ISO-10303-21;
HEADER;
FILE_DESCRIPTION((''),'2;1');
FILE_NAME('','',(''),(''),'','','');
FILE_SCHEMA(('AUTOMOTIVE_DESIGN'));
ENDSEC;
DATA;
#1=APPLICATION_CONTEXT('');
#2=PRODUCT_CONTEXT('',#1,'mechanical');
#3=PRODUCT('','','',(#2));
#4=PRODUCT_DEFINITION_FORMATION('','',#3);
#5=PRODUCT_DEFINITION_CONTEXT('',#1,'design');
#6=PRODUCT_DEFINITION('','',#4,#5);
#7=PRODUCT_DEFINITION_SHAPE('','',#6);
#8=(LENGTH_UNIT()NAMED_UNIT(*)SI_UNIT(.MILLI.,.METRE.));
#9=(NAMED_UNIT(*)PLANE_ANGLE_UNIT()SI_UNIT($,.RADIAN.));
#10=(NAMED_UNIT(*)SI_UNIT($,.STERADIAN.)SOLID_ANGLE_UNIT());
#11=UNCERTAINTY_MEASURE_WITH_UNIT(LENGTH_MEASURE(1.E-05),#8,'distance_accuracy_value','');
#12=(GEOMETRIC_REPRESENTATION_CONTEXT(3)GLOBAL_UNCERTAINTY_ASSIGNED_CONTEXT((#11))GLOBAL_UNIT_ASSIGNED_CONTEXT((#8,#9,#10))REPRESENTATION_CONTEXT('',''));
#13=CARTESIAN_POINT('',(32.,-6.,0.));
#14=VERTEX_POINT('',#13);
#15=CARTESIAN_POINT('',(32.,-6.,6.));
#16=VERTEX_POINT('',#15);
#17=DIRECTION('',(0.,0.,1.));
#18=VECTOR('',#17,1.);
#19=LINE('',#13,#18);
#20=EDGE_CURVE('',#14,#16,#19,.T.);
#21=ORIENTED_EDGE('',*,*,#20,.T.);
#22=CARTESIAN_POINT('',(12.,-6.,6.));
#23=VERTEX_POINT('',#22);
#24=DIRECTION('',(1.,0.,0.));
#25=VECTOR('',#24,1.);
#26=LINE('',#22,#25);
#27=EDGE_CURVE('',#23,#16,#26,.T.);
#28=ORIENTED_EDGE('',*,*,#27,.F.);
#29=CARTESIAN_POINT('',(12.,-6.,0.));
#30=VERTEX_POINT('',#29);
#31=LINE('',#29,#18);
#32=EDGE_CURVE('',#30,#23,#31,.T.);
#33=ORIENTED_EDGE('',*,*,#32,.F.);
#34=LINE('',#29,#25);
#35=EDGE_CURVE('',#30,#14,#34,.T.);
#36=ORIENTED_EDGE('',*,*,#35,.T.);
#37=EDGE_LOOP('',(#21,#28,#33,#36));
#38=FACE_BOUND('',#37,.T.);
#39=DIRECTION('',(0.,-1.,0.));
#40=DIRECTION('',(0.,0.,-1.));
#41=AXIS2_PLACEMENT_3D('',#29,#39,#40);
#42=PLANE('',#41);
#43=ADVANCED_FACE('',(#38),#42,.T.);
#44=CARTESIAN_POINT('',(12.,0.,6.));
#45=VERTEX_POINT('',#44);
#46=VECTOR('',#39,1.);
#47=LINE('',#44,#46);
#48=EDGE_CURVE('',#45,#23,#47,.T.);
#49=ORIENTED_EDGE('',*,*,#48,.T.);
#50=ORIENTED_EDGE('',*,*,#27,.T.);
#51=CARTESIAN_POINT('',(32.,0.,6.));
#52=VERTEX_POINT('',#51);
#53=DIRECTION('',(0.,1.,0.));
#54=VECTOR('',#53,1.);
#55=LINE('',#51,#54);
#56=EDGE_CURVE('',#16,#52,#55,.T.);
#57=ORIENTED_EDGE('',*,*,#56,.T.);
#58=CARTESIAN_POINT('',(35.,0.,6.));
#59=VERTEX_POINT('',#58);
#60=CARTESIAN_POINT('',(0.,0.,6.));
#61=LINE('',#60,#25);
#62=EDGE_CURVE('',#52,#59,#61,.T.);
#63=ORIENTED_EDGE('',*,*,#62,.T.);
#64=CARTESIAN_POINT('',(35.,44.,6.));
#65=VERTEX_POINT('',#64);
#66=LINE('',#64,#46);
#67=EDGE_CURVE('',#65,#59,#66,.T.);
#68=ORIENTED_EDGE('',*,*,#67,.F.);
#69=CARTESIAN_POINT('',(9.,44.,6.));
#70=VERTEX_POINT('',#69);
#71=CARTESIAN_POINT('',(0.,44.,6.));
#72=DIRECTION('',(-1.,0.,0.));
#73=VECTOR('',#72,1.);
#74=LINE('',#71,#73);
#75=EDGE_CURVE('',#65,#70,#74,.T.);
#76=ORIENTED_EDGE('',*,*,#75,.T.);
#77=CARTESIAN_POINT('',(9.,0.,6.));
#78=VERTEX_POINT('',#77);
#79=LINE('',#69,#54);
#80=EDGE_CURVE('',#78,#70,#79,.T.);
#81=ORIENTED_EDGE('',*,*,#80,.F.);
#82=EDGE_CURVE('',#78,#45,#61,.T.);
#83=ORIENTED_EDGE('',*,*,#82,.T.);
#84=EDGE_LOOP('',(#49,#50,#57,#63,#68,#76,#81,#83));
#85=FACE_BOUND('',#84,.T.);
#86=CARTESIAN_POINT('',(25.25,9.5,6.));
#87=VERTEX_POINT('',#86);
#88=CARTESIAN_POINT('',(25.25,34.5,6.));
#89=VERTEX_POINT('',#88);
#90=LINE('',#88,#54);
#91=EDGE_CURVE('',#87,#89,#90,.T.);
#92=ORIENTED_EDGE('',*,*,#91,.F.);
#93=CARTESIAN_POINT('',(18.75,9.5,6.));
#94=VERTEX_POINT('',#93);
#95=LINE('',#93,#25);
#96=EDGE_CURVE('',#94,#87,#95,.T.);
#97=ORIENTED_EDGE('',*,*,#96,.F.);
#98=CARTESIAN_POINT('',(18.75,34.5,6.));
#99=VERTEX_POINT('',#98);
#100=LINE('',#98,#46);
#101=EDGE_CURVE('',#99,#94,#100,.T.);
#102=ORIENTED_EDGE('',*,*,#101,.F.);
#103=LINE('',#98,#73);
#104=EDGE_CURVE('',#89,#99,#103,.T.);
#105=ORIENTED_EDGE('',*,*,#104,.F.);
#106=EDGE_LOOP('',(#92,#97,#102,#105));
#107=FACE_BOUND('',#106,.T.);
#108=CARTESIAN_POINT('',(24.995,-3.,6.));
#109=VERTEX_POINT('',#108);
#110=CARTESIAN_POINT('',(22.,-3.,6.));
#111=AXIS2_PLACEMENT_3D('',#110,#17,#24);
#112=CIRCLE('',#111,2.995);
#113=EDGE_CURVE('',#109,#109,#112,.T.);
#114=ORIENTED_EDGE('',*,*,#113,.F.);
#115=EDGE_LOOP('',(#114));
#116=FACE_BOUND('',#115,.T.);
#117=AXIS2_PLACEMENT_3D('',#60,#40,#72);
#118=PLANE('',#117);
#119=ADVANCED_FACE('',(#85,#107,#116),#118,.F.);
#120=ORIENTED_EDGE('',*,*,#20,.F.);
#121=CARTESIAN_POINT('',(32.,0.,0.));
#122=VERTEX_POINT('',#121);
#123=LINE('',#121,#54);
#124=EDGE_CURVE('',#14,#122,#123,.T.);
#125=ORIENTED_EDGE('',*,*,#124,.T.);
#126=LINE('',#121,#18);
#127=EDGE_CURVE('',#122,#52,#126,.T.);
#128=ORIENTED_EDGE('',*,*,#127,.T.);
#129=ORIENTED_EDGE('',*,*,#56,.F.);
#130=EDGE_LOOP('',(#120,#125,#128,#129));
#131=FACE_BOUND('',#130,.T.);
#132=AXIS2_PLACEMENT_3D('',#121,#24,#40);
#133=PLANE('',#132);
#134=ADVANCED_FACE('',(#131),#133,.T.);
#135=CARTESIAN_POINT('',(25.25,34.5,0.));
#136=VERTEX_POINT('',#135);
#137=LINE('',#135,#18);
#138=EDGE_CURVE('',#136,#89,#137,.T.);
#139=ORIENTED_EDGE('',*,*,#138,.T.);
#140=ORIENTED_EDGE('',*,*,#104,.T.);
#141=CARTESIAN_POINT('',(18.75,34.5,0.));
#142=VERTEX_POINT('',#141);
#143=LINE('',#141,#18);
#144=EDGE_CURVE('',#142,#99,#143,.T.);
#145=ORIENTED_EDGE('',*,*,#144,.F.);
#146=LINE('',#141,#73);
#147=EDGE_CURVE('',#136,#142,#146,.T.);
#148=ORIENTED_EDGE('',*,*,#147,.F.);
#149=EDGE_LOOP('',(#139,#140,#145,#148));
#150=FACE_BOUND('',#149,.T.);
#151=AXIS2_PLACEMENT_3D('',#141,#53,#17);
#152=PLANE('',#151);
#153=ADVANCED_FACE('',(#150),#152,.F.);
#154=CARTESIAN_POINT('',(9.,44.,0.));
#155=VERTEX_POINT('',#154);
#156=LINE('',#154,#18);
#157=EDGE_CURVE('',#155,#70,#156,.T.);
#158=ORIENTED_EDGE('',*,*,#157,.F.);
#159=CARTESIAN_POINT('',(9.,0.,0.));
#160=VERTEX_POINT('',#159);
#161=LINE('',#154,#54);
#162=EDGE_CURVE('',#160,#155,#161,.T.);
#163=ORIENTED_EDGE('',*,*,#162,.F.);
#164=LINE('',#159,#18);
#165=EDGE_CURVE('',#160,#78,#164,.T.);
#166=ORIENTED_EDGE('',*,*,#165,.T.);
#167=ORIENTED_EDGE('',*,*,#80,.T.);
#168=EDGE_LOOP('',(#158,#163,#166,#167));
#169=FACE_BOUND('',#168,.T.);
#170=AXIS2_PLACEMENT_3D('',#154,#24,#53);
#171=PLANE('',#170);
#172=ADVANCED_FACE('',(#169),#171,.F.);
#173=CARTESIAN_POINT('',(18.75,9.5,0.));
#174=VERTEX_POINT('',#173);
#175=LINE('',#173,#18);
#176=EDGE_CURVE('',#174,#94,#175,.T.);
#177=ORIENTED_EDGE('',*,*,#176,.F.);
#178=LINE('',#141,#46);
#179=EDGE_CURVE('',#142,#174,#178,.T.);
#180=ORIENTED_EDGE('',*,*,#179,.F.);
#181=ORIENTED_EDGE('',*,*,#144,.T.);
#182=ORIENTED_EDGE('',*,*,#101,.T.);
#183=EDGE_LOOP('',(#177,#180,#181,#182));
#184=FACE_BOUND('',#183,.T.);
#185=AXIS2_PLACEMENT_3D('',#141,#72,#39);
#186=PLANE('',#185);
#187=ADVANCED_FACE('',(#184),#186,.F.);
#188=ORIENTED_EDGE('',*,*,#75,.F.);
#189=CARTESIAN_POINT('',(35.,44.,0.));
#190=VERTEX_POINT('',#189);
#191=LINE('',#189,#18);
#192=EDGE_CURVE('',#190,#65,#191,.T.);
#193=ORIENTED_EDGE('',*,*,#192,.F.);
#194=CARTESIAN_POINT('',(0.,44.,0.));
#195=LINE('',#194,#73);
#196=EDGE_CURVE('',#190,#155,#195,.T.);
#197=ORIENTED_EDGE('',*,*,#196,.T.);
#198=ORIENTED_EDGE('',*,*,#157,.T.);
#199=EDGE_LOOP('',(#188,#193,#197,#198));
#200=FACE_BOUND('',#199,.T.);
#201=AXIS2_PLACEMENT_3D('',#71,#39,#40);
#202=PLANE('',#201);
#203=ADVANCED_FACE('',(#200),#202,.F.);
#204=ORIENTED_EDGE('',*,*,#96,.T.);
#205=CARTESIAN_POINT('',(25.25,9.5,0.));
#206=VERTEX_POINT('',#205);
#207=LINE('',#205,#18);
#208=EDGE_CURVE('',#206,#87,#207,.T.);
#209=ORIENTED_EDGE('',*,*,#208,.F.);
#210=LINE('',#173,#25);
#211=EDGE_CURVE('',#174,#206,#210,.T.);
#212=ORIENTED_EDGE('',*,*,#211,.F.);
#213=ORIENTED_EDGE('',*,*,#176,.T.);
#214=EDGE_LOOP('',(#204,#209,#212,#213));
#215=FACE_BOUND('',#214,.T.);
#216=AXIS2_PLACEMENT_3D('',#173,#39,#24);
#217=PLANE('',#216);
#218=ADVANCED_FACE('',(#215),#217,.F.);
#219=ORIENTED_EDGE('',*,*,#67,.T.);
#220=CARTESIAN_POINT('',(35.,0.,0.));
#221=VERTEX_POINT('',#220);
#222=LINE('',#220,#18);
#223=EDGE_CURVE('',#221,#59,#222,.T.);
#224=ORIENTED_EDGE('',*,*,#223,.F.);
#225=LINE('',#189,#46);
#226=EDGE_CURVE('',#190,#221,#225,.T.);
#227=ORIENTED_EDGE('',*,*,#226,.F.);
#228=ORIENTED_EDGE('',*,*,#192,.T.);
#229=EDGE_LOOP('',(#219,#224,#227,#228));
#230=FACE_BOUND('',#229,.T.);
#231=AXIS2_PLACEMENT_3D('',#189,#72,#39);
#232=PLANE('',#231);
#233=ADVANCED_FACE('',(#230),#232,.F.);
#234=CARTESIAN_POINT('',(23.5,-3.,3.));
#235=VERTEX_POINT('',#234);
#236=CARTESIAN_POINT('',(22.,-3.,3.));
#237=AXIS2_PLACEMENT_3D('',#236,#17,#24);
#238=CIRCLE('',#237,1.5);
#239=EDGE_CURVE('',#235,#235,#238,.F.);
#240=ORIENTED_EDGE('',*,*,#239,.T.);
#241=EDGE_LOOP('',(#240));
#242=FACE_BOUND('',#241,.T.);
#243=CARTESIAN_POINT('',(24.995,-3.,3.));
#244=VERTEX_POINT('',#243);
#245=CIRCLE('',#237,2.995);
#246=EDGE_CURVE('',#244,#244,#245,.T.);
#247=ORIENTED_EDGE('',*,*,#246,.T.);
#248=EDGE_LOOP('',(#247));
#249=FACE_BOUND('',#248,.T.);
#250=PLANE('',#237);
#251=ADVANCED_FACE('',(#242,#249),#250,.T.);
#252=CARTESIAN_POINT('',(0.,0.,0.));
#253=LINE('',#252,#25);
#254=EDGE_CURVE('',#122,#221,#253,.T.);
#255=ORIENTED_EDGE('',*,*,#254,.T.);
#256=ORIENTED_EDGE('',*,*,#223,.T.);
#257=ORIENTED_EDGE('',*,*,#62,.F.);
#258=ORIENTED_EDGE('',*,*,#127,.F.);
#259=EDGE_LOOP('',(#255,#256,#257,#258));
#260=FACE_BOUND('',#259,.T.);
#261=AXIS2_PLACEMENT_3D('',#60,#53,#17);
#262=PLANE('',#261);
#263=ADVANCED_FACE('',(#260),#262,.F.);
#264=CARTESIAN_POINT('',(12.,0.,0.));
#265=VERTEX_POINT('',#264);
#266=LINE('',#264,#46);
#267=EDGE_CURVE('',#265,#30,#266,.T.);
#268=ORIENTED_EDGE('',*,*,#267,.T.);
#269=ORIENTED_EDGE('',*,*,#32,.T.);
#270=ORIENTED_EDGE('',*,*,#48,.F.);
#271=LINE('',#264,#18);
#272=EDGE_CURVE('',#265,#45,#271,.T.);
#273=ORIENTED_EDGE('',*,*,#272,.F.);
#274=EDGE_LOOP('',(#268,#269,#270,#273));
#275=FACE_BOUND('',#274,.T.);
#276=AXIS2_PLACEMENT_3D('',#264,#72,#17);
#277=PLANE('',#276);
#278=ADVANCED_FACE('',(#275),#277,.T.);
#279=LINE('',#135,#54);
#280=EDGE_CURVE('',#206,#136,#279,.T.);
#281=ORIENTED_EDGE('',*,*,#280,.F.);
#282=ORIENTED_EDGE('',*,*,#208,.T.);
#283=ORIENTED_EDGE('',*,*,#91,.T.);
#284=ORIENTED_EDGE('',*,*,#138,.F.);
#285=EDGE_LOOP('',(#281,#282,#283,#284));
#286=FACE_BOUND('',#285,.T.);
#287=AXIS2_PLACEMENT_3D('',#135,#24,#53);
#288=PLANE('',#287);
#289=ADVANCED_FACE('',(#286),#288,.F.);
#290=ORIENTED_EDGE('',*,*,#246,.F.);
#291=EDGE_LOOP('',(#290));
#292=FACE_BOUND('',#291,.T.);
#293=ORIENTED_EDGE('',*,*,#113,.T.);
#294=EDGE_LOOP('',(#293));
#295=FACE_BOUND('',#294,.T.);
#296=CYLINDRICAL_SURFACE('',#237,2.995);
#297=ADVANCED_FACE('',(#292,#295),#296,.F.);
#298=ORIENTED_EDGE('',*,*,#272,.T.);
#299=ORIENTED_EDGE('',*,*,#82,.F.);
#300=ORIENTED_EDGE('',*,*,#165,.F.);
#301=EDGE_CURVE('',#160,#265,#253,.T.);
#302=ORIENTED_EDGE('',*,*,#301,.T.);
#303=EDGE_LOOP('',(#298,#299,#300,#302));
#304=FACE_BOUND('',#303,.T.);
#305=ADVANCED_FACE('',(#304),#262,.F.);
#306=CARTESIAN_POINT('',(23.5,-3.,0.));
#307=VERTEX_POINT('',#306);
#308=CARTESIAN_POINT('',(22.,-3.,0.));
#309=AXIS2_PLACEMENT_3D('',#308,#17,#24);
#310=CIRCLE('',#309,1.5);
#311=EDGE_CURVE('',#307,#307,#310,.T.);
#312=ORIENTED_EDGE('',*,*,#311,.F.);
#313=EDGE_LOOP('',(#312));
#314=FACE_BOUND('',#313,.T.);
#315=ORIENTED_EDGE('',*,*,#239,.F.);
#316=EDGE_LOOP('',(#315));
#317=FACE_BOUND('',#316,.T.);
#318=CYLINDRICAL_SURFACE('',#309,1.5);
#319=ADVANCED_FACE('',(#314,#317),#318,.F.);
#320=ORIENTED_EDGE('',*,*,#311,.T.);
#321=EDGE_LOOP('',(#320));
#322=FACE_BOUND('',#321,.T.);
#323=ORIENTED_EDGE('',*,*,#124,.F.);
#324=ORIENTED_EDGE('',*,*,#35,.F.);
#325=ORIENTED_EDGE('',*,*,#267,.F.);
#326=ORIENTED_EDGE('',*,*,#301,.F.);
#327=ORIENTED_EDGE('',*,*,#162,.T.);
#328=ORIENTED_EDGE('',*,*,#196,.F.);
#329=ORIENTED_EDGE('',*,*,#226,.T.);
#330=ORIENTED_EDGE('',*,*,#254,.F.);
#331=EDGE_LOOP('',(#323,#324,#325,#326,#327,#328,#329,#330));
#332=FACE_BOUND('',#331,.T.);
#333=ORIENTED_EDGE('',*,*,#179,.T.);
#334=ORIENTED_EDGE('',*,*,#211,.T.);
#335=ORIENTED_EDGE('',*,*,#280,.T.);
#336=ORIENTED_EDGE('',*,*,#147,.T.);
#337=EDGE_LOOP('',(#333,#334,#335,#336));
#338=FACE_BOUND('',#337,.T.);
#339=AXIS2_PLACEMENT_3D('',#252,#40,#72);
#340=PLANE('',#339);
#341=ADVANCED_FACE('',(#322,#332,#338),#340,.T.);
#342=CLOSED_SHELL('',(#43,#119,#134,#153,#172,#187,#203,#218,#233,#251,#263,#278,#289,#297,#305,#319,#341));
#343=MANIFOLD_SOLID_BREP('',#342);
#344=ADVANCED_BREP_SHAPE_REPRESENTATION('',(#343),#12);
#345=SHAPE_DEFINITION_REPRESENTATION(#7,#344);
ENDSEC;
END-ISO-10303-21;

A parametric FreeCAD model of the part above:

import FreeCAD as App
import Part
import Sketcher

doc = App.newDocument("Part")
body = doc.addObject("PartDesign::Body", "Body")

sketch1 = body.newObject("Sketcher::SketchObject", "Sketch")
sketch1.AttachmentSupport = (doc.getObject("XY_Plane"), [""])
sketch1.MapMode = "FlatFace"
sketch1.addGeometry([
    Part.LineSegment(App.Vector(0, 44, 0), App.Vector(0, 0, 0)),
    Part.LineSegment(App.Vector(0, 0, 0), App.Vector(44, 0, 0)),
    Part.LineSegment(App.Vector(44, 0, 0), App.Vector(44, 44, 0)),
    Part.LineSegment(App.Vector(44, 44, 0), App.Vector(0, 44, 0)),
], False)
sketch1.addConstraint([
    Sketcher.Constraint("Coincident", 0, 2, 1, 1),
    Sketcher.Constraint("Coincident", 1, 2, 2, 1),
    Sketcher.Constraint("Coincident", 2, 2, 3, 1),
    Sketcher.Constraint("Coincident", 3, 2, 0, 1),
    Sketcher.Constraint("Vertical", 0),
    Sketcher.Constraint("Horizontal", 1),
    Sketcher.Constraint("Vertical", 2),
    Sketcher.Constraint("Horizontal", 3),
    Sketcher.Constraint("Coincident", 0, 2, -1, 1),
    Sketcher.Constraint("Equal", 3, 0),
    Sketcher.Constraint("DistanceX", 1, 1, 1, 2, 44.0),
])
pad1 = body.newObject("PartDesign::Pad", "Pad")
pad1.Profile = sketch1
pad1.Length = 6

sketch2 = body.newObject("Sketcher::SketchObject", "Sketch001")
sketch2.AttachmentSupport = (doc.getObject("XY_Plane"), [""])
sketch2.MapMode = "FlatFace"
sketch2.AttachmentOffset = App.Placement(App.Vector(0, 0, 6), App.Rotation())
sketch2.addGeometry([
    Part.LineSegment(App.Vector(12, 0, 0), App.Vector(12, -6, 0)),
    Part.LineSegment(App.Vector(12, -6, 0), App.Vector(32, -6, 0)),
    Part.LineSegment(App.Vector(32, -6, 0), App.Vector(32, 0, 0)),
    Part.LineSegment(App.Vector(32, 0, 0), App.Vector(12, 0, 0)),
], False)
sketch2.addConstraint([
    Sketcher.Constraint("Coincident", 0, 2, 1, 1),
    Sketcher.Constraint("Coincident", 1, 2, 2, 1),
    Sketcher.Constraint("Coincident", 2, 2, 3, 1),
    Sketcher.Constraint("Coincident", 3, 2, 0, 1),
    Sketcher.Constraint("Vertical", 0),
    Sketcher.Constraint("Horizontal", 1),
    Sketcher.Constraint("Vertical", 2),
    Sketcher.Constraint("Horizontal", 3),
    Sketcher.Constraint("PointOnObject", 2, 2, -1),
    Sketcher.Constraint("DistanceX", 1, 1, 1, 2, 20.0),
    Sketcher.Constraint("DistanceY", 0, 2, 0, 1, 6.0),
    Sketcher.Constraint("DistanceX", -1, 1, 0, 2, 12.0),
])
pad2 = body.newObject("PartDesign::Pad", "Pad001")
pad2.Profile = sketch2
pad2.Length = 6
pad2.Reversed = True

sketch3 = body.newObject("Sketcher::SketchObject", "Sketch002")
sketch3.AttachmentSupport = (doc.getObject("XY_Plane"), [""])
sketch3.MapMode = "FlatFace"
sketch3.AttachmentOffset = App.Placement(App.Vector(0, 0, 6), App.Rotation())
sketch3.addGeometry([
    Part.LineSegment(App.Vector(19, 34, 0), App.Vector(19, 10, 0)),
    Part.LineSegment(App.Vector(19, 10, 0), App.Vector(25, 10, 0)),
    Part.LineSegment(App.Vector(25, 10, 0), App.Vector(25, 34, 0)),
    Part.LineSegment(App.Vector(25, 34, 0), App.Vector(19, 34, 0)),
], False)
sketch3.addConstraint([
    Sketcher.Constraint("Coincident", 0, 2, 1, 1),
    Sketcher.Constraint("Coincident", 1, 2, 2, 1),
    Sketcher.Constraint("Coincident", 2, 2, 3, 1),
    Sketcher.Constraint("Coincident", 3, 2, 0, 1),
    Sketcher.Constraint("Vertical", 0),
    Sketcher.Constraint("Horizontal", 1),
    Sketcher.Constraint("Vertical", 2),
    Sketcher.Constraint("Horizontal", 3),
    Sketcher.Constraint("DistanceY", 0, 2, 0, 1, 25.0),
    Sketcher.Constraint("DistanceX", 1, 1, 1, 2, 6.5),
    Sketcher.Constraint("DistanceY", -1, 1, 0, 2, 9.5),
    Sketcher.Constraint("DistanceX", -1, 1, 0, 2, 18.75),
])
pocket1 = body.newObject("PartDesign::Pocket", "Pocket")
pocket1.Profile = sketch3
pocket1.Length = 6

sketch4 = body.newObject("Sketcher::SketchObject", "Sketch003")
sketch4.AttachmentSupport = (doc.getObject("XY_Plane"), [""])
sketch4.MapMode = "FlatFace"
sketch4.AttachmentOffset = App.Placement(App.Vector(0, 0, 6), App.Rotation())
sketch4.addGeometry([
    Part.LineSegment(App.Vector(0, 44, 0), App.Vector(0, 0, 0)),
    Part.LineSegment(App.Vector(0, 0, 0), App.Vector(9, 0, 0)),
    Part.LineSegment(App.Vector(9, 0, 0), App.Vector(9, 44, 0)),
    Part.LineSegment(App.Vector(9, 44, 0), App.Vector(0, 44, 0)),
    Part.LineSegment(App.Vector(35, 44, 0), App.Vector(35, 0, 0)),
    Part.LineSegment(App.Vector(35, 0, 0), App.Vector(44, 0, 0)),
    Part.LineSegment(App.Vector(44, 0, 0), App.Vector(44, 44, 0)),
    Part.LineSegment(App.Vector(44, 44, 0), App.Vector(35, 44, 0)),
], False)
sketch4.addConstraint([
    Sketcher.Constraint("Coincident", 0, 2, 1, 1),
    Sketcher.Constraint("Coincident", 1, 2, 2, 1),
    Sketcher.Constraint("Coincident", 2, 2, 3, 1),
    Sketcher.Constraint("Coincident", 3, 2, 0, 1),
    Sketcher.Constraint("Coincident", 4, 2, 5, 1),
    Sketcher.Constraint("Coincident", 5, 2, 6, 1),
    Sketcher.Constraint("Coincident", 6, 2, 7, 1),
    Sketcher.Constraint("Coincident", 7, 2, 4, 1),
    Sketcher.Constraint("Vertical", 0),
    Sketcher.Constraint("Horizontal", 1),
    Sketcher.Constraint("Vertical", 2),
    Sketcher.Constraint("Horizontal", 3),
    Sketcher.Constraint("Vertical", 4),
    Sketcher.Constraint("Horizontal", 5),
    Sketcher.Constraint("Vertical", 6),
    Sketcher.Constraint("Horizontal", 7),
    Sketcher.Constraint("Coincident", 0, 2, -1, 1),
    Sketcher.Constraint("PointOnObject", 4, 2, -1),
    Sketcher.Constraint("Horizontal", 3, 2, 6, 2),
    Sketcher.Constraint("Equal", 3, 5),
    Sketcher.Constraint("DistanceX", 1, 1, 1, 2, 9.0),
    Sketcher.Constraint("DistanceY", 0, 2, 0, 1, 44.0),
    Sketcher.Constraint("DistanceX", -1, 1, 4, 2, 35.0),
])
pocket2 = body.newObject("PartDesign::Pocket", "Pocket001")
pocket2.Profile = sketch4
pocket2.Length = 6

sketch5 = body.newObject("Sketcher::SketchObject", "Sketch004")
sketch5.AttachmentSupport = (doc.getObject("XY_Plane"), [""])
sketch5.MapMode = "FlatFace"
sketch5.AttachmentOffset = App.Placement(App.Vector(0, 0, 6), App.Rotation())
sketch5.addGeometry(Part.Circle(App.Vector(22, -3, 0), App.Vector(0, 0, 1), 1.5), False)
sketch5.addConstraint([
    Sketcher.Constraint("Diameter", 0, 3.0),
    Sketcher.Constraint("DistanceX", -1, 1, 0, 3, 22.0),
    Sketcher.Constraint("DistanceY", 0, 3, -1, 1, 3.0),
])
pocket3 = body.newObject("PartDesign::Pocket", "Pocket002")
pocket3.Profile = sketch5
pocket3.Length = 6

sketch6 = body.newObject("Sketcher::SketchObject", "Sketch005")
sketch6.AttachmentSupport = (doc.getObject("XY_Plane"), [""])
sketch6.MapMode = "FlatFace"
sketch6.AttachmentOffset = App.Placement(App.Vector(0, 0, 6), App.Rotation())
sketch6.addGeometry(Part.Circle(App.Vector(22, -3, 0), App.Vector(0, 0, 1), 3), False)
sketch6.addConstraint([
    Sketcher.Constraint("Diameter", 0, 5.99),
    Sketcher.Constraint("DistanceX", -1, 1, 0, 3, 22.0),
    Sketcher.Constraint("DistanceY", 0, 3, -1, 1, 3.0),
])
pocket4 = body.newObject("PartDesign::Pocket", "Pocket003")
pocket4.Profile = sketch6
pocket4.Length = 3

doc.recompute()
